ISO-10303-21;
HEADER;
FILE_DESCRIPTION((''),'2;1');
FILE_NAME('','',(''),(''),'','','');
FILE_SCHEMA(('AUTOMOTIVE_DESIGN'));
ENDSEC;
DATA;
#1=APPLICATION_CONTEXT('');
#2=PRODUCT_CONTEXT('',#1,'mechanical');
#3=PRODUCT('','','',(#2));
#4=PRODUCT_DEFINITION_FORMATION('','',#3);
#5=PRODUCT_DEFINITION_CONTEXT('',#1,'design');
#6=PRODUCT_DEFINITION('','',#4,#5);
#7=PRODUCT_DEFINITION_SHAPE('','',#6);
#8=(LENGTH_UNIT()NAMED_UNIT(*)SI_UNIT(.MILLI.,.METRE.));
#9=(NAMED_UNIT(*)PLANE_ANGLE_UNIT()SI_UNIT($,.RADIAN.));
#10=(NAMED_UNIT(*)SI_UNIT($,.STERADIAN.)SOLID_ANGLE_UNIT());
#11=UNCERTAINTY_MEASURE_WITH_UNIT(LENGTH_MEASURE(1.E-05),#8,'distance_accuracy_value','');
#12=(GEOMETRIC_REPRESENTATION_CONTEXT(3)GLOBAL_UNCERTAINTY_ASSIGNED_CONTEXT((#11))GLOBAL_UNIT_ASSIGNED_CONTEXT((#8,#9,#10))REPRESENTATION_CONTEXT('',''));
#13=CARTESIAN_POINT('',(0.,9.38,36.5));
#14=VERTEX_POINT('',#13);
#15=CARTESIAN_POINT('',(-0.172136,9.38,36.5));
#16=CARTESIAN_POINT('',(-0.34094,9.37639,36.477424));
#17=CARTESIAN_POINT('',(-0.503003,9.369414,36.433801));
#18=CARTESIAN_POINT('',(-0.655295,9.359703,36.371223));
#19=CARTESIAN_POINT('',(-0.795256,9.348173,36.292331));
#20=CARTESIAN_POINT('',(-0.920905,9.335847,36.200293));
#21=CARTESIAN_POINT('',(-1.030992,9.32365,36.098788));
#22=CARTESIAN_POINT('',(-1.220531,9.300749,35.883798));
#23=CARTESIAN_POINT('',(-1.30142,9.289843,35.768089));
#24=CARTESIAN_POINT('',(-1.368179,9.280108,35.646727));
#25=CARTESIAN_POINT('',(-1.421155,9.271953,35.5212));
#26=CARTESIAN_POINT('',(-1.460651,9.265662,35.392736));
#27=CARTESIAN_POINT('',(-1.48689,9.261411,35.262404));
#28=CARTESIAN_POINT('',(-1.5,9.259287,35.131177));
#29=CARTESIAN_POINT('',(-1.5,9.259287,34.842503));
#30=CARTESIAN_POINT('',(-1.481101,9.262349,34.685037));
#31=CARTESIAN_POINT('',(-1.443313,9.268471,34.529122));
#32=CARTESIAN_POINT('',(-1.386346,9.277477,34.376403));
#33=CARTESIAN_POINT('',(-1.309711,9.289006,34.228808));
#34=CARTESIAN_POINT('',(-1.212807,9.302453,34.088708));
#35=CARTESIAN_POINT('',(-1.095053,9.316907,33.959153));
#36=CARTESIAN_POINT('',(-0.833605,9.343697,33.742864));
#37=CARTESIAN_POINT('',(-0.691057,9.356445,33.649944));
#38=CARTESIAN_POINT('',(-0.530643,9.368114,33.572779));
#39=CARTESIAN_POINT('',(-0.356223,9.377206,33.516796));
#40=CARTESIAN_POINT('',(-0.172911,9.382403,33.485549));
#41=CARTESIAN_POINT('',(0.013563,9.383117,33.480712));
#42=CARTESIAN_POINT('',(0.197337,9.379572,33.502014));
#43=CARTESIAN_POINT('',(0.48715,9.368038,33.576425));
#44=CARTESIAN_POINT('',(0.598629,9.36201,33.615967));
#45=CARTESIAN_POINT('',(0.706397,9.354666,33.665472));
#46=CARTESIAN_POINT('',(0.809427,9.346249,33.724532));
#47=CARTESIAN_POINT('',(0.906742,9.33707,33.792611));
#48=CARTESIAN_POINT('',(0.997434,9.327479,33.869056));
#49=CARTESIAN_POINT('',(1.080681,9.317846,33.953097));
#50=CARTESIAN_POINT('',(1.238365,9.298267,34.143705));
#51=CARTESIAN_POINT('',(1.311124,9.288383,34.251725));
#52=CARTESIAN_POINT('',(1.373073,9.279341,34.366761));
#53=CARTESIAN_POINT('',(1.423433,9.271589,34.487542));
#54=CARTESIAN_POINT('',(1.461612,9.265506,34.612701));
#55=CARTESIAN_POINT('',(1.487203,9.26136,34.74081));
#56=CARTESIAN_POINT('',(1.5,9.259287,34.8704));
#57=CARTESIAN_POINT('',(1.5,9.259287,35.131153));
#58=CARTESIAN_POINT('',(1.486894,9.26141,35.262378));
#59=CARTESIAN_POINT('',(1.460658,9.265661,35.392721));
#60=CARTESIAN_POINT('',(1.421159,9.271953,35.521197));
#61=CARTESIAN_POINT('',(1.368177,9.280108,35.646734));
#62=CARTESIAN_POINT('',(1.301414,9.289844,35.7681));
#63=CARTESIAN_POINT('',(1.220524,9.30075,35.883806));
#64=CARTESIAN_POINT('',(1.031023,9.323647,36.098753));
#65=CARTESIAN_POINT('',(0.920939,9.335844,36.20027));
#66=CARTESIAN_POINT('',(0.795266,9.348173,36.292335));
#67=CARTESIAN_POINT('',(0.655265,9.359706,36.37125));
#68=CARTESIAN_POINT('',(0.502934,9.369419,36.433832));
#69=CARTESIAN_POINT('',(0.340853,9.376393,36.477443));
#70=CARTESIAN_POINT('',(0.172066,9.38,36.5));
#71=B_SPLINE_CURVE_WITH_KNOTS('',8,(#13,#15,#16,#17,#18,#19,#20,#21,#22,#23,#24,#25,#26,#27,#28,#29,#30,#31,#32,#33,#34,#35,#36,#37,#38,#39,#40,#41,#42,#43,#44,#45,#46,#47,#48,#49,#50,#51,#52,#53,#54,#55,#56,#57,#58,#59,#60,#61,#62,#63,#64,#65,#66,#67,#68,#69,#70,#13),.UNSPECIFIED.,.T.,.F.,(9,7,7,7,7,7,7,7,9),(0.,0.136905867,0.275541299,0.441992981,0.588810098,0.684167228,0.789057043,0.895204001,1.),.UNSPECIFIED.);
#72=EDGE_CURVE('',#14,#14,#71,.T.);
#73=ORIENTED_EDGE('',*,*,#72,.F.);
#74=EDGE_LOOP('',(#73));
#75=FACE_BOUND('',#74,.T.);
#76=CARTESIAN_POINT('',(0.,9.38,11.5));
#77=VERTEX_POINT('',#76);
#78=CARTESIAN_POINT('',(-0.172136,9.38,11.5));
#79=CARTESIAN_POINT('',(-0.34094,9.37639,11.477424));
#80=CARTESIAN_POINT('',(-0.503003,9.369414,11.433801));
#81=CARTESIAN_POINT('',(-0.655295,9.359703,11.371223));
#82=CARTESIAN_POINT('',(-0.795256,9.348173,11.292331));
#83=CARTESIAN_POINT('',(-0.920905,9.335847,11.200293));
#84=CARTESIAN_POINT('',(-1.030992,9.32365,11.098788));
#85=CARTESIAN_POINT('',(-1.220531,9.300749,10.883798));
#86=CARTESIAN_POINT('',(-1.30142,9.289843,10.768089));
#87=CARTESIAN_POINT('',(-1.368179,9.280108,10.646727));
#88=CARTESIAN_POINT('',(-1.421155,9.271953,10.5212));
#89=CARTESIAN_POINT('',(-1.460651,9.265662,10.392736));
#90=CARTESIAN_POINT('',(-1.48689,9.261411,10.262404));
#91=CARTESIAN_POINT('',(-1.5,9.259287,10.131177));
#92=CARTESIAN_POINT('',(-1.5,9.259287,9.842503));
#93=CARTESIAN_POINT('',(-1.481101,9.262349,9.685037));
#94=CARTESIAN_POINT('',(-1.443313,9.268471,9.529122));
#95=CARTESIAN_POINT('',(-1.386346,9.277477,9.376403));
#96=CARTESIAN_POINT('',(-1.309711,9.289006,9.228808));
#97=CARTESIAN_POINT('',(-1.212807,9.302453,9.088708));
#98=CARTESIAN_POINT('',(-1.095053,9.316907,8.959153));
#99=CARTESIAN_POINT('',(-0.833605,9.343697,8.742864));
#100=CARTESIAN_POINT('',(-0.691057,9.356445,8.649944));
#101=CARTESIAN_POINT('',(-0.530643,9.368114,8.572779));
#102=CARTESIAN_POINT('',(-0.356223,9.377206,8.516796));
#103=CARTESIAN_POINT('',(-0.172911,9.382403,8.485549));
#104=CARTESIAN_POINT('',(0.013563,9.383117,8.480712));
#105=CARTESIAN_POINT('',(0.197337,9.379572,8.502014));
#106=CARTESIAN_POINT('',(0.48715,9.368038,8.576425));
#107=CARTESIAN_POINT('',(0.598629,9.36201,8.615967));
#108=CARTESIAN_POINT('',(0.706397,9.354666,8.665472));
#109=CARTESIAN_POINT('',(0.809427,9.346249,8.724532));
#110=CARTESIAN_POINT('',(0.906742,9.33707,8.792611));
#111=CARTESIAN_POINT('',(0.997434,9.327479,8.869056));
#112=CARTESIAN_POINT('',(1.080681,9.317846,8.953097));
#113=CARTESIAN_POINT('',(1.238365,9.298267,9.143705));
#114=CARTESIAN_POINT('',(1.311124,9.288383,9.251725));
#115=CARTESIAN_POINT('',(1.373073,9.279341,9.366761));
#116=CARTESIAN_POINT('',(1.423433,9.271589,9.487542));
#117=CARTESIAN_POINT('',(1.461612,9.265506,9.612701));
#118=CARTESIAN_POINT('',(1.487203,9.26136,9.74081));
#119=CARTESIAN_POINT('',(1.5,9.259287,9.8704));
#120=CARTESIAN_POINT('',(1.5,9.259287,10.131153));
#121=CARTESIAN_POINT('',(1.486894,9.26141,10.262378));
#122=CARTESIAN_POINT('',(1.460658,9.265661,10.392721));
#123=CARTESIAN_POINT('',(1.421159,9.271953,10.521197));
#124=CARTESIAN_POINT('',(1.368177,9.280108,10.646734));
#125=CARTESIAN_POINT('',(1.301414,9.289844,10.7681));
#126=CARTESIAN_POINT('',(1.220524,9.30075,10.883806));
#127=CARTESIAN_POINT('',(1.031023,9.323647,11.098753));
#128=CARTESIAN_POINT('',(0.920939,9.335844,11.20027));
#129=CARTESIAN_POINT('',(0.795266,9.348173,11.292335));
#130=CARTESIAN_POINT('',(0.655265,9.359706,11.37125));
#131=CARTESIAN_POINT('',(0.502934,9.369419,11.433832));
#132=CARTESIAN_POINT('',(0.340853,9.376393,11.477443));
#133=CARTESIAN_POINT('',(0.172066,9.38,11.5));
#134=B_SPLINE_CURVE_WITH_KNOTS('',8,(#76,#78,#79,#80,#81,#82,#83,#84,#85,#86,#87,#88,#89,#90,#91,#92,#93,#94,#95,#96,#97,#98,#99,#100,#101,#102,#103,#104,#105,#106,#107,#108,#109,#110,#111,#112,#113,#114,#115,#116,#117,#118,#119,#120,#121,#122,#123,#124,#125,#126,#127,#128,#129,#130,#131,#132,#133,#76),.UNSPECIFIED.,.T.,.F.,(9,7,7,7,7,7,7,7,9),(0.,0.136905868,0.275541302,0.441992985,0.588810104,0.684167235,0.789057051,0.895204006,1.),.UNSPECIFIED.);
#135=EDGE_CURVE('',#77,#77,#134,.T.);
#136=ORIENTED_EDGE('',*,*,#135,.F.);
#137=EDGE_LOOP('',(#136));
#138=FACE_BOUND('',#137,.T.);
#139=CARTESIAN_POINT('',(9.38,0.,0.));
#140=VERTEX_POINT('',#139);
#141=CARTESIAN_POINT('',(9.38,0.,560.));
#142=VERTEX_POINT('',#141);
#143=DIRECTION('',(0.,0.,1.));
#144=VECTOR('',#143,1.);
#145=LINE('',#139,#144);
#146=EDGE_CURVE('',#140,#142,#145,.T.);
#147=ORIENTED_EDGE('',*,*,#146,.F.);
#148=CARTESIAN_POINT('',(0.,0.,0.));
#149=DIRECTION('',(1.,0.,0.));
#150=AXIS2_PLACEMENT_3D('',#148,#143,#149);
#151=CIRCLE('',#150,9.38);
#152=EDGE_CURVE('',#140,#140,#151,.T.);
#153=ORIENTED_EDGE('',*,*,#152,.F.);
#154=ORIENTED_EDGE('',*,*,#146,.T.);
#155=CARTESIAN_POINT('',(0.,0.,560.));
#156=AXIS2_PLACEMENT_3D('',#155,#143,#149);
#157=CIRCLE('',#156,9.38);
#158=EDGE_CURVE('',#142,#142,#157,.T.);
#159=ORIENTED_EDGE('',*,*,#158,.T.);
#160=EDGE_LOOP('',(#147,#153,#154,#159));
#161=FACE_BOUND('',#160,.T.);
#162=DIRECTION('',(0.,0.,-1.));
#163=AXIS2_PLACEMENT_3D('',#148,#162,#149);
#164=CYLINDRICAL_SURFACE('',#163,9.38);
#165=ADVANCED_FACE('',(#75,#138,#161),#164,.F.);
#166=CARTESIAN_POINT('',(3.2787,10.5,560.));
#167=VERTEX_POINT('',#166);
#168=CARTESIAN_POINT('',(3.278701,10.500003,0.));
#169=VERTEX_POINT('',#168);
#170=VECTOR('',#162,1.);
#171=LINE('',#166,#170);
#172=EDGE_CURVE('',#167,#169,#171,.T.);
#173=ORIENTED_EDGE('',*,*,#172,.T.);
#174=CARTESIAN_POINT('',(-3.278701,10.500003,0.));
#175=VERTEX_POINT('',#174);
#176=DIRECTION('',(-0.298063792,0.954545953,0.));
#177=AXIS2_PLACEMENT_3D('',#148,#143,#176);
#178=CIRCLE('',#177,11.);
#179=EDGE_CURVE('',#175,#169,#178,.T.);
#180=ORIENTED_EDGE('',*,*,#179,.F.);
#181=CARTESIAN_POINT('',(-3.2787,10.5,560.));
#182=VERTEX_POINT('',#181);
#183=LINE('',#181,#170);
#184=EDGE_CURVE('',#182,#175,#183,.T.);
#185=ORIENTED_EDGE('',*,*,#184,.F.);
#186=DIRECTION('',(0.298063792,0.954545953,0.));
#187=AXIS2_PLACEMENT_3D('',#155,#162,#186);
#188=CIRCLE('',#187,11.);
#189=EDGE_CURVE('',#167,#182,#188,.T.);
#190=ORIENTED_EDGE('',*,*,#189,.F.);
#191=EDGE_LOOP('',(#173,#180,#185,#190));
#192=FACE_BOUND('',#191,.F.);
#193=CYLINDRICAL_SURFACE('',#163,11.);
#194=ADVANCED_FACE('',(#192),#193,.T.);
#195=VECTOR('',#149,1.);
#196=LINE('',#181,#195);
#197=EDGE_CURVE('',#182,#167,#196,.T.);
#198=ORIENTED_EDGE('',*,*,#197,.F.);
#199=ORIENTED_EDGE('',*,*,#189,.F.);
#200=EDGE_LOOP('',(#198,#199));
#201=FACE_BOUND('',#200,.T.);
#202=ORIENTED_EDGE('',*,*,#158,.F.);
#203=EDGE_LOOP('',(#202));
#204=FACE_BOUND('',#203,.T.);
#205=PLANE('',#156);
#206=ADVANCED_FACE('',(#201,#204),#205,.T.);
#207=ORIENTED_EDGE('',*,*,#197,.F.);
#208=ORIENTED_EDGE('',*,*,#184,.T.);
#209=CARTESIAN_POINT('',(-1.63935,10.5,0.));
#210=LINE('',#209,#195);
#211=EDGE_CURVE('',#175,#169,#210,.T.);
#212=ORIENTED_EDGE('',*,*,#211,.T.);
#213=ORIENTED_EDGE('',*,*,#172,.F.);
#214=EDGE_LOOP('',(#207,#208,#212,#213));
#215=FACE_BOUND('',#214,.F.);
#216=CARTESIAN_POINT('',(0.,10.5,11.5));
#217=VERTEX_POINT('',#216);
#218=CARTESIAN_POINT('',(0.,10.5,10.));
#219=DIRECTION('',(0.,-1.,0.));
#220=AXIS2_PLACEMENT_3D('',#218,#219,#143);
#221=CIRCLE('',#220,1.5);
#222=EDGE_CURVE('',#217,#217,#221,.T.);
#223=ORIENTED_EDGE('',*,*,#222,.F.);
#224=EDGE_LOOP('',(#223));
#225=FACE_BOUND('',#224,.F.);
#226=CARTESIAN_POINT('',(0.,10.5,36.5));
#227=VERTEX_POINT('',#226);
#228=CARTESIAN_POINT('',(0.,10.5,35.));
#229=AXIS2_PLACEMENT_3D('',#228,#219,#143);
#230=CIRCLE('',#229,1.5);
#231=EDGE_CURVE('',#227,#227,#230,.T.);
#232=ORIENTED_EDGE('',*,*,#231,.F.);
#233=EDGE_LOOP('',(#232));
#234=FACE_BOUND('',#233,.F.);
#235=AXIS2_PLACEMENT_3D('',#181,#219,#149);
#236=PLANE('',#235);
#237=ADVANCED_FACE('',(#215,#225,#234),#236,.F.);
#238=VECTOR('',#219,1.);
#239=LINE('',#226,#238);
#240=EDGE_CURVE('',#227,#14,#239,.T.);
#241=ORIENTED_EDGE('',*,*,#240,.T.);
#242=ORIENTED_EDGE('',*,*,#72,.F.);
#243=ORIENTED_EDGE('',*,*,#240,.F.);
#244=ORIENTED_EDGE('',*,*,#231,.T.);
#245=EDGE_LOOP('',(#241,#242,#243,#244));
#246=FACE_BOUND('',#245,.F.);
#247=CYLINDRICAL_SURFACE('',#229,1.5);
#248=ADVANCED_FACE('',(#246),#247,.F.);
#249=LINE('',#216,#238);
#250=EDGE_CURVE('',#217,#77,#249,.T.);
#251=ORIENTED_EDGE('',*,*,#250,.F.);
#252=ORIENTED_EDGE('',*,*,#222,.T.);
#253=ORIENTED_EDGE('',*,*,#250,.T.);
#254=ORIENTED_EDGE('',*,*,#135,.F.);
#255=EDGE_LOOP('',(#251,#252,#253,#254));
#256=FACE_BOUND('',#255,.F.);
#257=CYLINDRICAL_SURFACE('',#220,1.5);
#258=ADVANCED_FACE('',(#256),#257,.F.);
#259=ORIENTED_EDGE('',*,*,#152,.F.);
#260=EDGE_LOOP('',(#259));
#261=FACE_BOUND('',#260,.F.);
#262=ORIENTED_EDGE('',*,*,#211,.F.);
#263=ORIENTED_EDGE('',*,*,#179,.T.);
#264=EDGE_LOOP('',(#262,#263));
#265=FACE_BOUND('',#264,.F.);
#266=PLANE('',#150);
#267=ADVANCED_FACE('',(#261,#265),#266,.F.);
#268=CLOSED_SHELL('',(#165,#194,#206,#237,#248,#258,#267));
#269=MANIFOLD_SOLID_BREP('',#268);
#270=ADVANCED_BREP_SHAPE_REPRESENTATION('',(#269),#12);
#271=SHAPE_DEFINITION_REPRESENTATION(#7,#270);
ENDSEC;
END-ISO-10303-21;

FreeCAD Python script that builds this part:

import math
import FreeCAD as App
import Part
import Sketcher
from FreeCAD import Vector

doc = App.newDocument("Part")
body = doc.addObject("PartDesign::Body", "Body")

sketch1 = body.newObject("Sketcher::SketchObject", "Sketch")
sketch1.AttachmentSupport = (doc.getObject("XY_Plane"), [""])
sketch1.MapMode = "FlatFace"
sketch1.addGeometry(Part.Circle(Vector(0, 0, 0), Vector(0, 0, 1), 11), False)
sketch1.addGeometry(Part.Circle(Vector(0, 0, 0), Vector(0, 0, 1), 9), False)
sketch1.addConstraint(Sketcher.Constraint("Coincident", 0, 3, -1, 1))
sketch1.addConstraint(Sketcher.Constraint("Coincident", 1, 3, -1, 1))
sketch1.addConstraint(Sketcher.Constraint("Diameter", 0, 22.0))
sketch1.addConstraint(Sketcher.Constraint("Diameter", 1, 18.76))
pad1 = body.newObject("PartDesign::Pad", "Pad")
pad1.Profile = sketch1
pad1.Length = 560

sketch2 = body.newObject("Sketcher::SketchObject", "Sketch001")
sketch2.AttachmentSupport = (doc.getObject("XY_Plane"), [""])
sketch2.MapMode = "FlatFace"
sketch2.AttachmentOffset = App.Placement(Vector(0, 0, 560), App.Rotation())
sketch2.addGeometry(Part.LineSegment(Vector(-3, 10, 0), Vector(3, 10, 0)), False)
sketch2.addGeometry(Part.ArcOfCircle(Part.Circle(Vector(0, 0, 0), Vector(0, 0, 1), 11), math.radians(73), math.radians(107)), False)
sketch2.addConstraint(Sketcher.Constraint("Coincident", 0, 1, 1, 2))
sketch2.addConstraint(Sketcher.Constraint("Coincident", 1, 1, 0, 2))
sketch2.addConstraint(Sketcher.Constraint("Horizontal", 0))
sketch2.addConstraint(Sketcher.Constraint("Coincident", 1, 3, -1, 1))
sketch2.addConstraint(Sketcher.Constraint("Radius", 1, 11.0))
sketch2.addConstraint(Sketcher.Constraint("DistanceY", -1, 1, 0, 1, 10.5))
pocket1 = body.newObject("PartDesign::Pocket", "Pocket")
pocket1.Profile = sketch2
pocket1.Type = "ThroughAll"

sketch3 = body.newObject("Sketcher::SketchObject", "Sketch002")
sketch3.AttachmentSupport = (doc.getObject("XZ_Plane"), [""])
sketch3.MapMode = "FlatFace"
sketch3.AttachmentOffset = App.Placement(Vector(0, 0, -10.5), App.Rotation())
sketch3.addGeometry(Part.Circle(Vector(0, 10, 0), Vector(0, 0, 1), 1.5), False)
sketch3.addConstraint(Sketcher.Constraint("PointOnObject", 0, 3, -2))
sketch3.addConstraint(Sketcher.Constraint("Diameter", 0, 3.0))
sketch3.addConstraint(Sketcher.Constraint("DistanceY", -1, 1, 0, 3, 10.0))
doc.recompute()
hole = body.newObject("PartDesign::Hole", "Hole")
hole.Profile = sketch3
hole.ThreadType = "None"
hole.Diameter = 3
hole.DepthType = "Dimension"
hole.Depth = 8
hole.DrillPoint = "Angled"
hole.DrillPointAngle = 118
hole.Reversed = True

sketch4 = body.newObject("Sketcher::SketchObject", "Sketch003")
sketch4.AttachmentSupport = (doc.getObject("XZ_Plane"), [""])
sketch4.MapMode = "FlatFace"
sketch4.AttachmentOffset = App.Placement(Vector(0, 0, -10.5), App.Rotation())
sketch4.addGeometry(Part.Circle(Vector(0, 35, 0), Vector(0, 0, 1), 1.5), False)
sketch4.addConstraint(Sketcher.Constraint("PointOnObject", 0, 3, -2))
sketch4.addConstraint(Sketcher.Constraint("Diameter", 0, 3.0))
sketch4.addConstraint(Sketcher.Constraint("DistanceY", -1, 1, 0, 3, 35.0))
doc.recompute()
hole2 = body.newObject("PartDesign::Hole", "Hole001")
hole2.Profile = sketch4
hole2.ThreadType = "None"
hole2.Diameter = 3
hole2.DepthType = "Dimension"
hole2.Depth = 8
hole2.DrillPoint = "Angled"
hole2.DrillPointAngle = 118
hole2.Reversed = True

doc.recompute()
